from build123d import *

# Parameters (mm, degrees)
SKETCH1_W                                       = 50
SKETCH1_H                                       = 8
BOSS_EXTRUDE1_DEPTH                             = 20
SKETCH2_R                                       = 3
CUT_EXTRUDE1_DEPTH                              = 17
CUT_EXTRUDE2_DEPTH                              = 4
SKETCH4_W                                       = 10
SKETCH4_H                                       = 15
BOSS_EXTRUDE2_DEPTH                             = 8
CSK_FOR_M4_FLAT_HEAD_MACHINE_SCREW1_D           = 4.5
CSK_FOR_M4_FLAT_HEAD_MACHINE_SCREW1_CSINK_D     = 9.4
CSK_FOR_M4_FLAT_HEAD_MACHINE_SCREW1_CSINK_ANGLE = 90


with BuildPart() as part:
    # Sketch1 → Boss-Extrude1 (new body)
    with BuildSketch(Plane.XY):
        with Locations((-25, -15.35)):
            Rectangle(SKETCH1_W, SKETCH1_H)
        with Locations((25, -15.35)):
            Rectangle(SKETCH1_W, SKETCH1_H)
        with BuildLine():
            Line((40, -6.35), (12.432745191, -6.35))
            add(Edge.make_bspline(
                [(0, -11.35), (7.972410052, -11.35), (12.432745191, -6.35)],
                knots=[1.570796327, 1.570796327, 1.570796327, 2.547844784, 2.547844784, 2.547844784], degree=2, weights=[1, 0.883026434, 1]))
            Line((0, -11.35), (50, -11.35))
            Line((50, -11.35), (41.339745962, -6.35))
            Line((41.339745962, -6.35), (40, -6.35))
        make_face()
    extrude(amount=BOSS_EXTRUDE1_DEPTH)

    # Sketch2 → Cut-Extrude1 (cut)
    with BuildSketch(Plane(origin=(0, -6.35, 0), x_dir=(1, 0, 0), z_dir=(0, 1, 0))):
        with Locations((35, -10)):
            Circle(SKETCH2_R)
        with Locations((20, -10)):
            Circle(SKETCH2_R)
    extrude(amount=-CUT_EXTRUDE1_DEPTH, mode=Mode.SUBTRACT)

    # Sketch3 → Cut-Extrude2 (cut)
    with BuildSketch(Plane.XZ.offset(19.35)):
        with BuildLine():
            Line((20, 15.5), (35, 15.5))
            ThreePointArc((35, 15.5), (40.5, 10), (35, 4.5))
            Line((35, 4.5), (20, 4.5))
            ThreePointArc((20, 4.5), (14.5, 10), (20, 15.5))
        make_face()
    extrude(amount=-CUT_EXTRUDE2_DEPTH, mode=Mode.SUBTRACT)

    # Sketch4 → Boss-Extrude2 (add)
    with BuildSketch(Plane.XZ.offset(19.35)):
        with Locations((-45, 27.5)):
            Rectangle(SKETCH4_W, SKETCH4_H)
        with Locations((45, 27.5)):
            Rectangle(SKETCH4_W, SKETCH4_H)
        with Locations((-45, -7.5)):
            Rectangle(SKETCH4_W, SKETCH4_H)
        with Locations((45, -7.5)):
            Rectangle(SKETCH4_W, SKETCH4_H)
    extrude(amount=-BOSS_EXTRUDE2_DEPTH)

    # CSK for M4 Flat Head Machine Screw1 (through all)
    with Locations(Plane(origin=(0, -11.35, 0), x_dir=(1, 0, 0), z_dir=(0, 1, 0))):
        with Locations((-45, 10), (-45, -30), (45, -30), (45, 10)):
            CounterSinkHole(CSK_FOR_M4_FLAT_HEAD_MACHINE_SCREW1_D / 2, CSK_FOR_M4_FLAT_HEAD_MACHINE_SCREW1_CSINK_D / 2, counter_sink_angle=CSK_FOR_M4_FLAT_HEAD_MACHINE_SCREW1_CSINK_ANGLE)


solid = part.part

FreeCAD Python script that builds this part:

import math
import FreeCAD as App
import Part
import Sketcher
from FreeCAD import Vector
Q = App.Units.Quantity

doc = App.newDocument("Part")
body = doc.addObject("PartDesign::Body", "Body")

sketch1 = body.newObject("Sketcher::SketchObject", "Sketch")
sketch1.AttachmentSupport = (doc.getObject("XY_Plane"), [""])
sketch1.MapMode = "FlatFace"
sketch1.addGeometry([
    Part.LineSegment(Vector(-50, -11.35, 0), Vector(-50, -19.35, 0)),
    Part.LineSegment(Vector(-50, -19.35, 0), Vector(50, -19.35, 0)),
    Part.LineSegment(Vector(50, -19.35, 0), Vector(50, -11.35, 0)),
    Part.LineSegment(Vector(50, -11.35, 0), Vector(41.339746, -6.35, 0)),
    Part.LineSegment(Vector(41.339746, -6.35, 0), Vector(12.432745, -6.35, 0)),
    Part.BSplineCurve([Vector(0, -11.35, 0), Vector(7.97241, -11.35, 0), Vector(12.432745, -6.35, 0)], [3, 3], [1.570796327, 2.547844784], False, 2, [1, 0.883026434, 1], False),
    Part.LineSegment(Vector(0, -11.35, 0), Vector(-50, -11.35, 0)),
], False)
sketch1.addConstraint([
    Sketcher.Constraint("Block", 5),
    Sketcher.Constraint("Coincident", 0, 2, 1, 1),
    Sketcher.Constraint("Coincident", 1, 2, 2, 1),
    Sketcher.Constraint("Coincident", 2, 2, 3, 1),
    Sketcher.Constraint("Coincident", 3, 2, 4, 1),
    Sketcher.Constraint("Coincident", 4, 2, 5, 2),
    Sketcher.Constraint("Coincident", 5, 1, 6, 1),
    Sketcher.Constraint("Coincident", 6, 2, 0, 1),
    Sketcher.Constraint("Vertical", 0),
    Sketcher.Constraint("Horizontal", 1),
    Sketcher.Constraint("Vertical", 2),
    Sketcher.Constraint("Horizontal", 4),
    Sketcher.Constraint("Horizontal", 6),
    Sketcher.Constraint("Symmetric", 2, 2, 6, 2, -2),
    Sketcher.Constraint("DistanceX", 1, 1, 1, 2, Q("100 mm")),
    Sketcher.Constraint("DistanceY", 0, 2, 0, 1, Q("8 mm")),
    Sketcher.Constraint("Angle", 3, Q("150 deg")),
])
pad1 = body.newObject("PartDesign::Pad", "Pad")
pad1.Profile = sketch1
pad1.Length = 20

sketch2 = body.newObject("Sketcher::SketchObject", "Sketch001")
sketch2.AttachmentSupport = (doc.getObject("XZ_Plane"), [""])
sketch2.MapMode = "FlatFace"
sketch2.AttachmentOffset = App.Placement(Vector(0, 0, 6.35), App.Rotation())
sketch2.addGeometry([
    Part.Circle(Vector(35, 10, 0), Vector(0, 0, 1), 3),
    Part.Circle(Vector(20, 10, 0), Vector(0, 0, 1), 3),
], False)
sketch2.addConstraint([
    Sketcher.Constraint("Equal", 0, 1),
    Sketcher.Constraint("Horizontal", 0, 3, 1, 3),
    Sketcher.Constraint("Diameter", 0, Q("6 mm")),
    Sketcher.Constraint("DistanceX", -1, 1, 0, 3, Q("35 mm")),
    Sketcher.Constraint("DistanceY", -1, 1, 0, 3, Q("10 mm")),
    Sketcher.Constraint("DistanceX", -1, 1, 1, 3, Q("20 mm")),
])
pocket1 = body.newObject("PartDesign::Pocket", "Pocket")
pocket1.Profile = sketch2
pocket1.Length = 17
pocket1.Reversed = True

sketch3 = body.newObject("Sketcher::SketchObject", "Sketch002")
sketch3.AttachmentSupport = (doc.getObject("XZ_Plane"), [""])
sketch3.MapMode = "FlatFace"
sketch3.AttachmentOffset = App.Placement(Vector(0, 0, 19.35), App.Rotation())
sketch3.addGeometry([
    Part.LineSegment(Vector(35, 16, 0), Vector(20, 16, 0)),
    Part.ArcOfCircle(Part.Circle(Vector(20, 10, 0), Vector(0, 0, 1), 6), math.radians(90), math.radians(270)),
    Part.LineSegment(Vector(20, 4, 0), Vector(35, 4, 0)),
    Part.ArcOfCircle(Part.Circle(Vector(35, 10, 0), Vector(0, 0, 1), 6), math.radians(-90), math.radians(90)),
], False)
sketch3.addConstraint([
    Sketcher.Constraint("Tangent", 0, 2, 1, 1),
    Sketcher.Constraint("Tangent", 1, 2, 2, 1),
    Sketcher.Constraint("Tangent", 2, 2, 3, 1),
    Sketcher.Constraint("Tangent", 3, 2, 0, 1),
    Sketcher.Constraint("Horizontal", 0),
    Sketcher.Constraint("Horizontal", 2),
    Sketcher.Constraint("Radius", 1, Q("5.5 mm")),
    Sketcher.Constraint("DistanceX", 0, 2, 0, 1, Q("15 mm")),
    Sketcher.Constraint("DistanceX", -1, 1, 1, 3, Q("20 mm")),
    Sketcher.Constraint("DistanceY", -1, 1, 1, 3, Q("10 mm")),
])
pocket2 = body.newObject("PartDesign::Pocket", "Pocket001")
pocket2.Profile = sketch3
pocket2.Length = 4

sketch4 = body.newObject("Sketcher::SketchObject", "Sketch003")
sketch4.AttachmentSupport = (doc.getObject("XZ_Plane"), [""])
sketch4.MapMode = "FlatFace"
sketch4.AttachmentOffset = App.Placement(Vector(0, 0, 19.35), App.Rotation())
sketch4.addGeometry([
    Part.LineSegment(Vector(-50, 35, 0), Vector(-50, 20, 0)),
    Part.LineSegment(Vector(-50, 20, 0), Vector(-40, 20, 0)),
    Part.LineSegment(Vector(-40, 20, 0), Vector(-40, 35, 0)),
    Part.LineSegment(Vector(-40, 35, 0), Vector(-50, 35, 0)),
    Part.LineSegment(Vector(40, 35, 0), Vector(40, 20, 0)),
    Part.LineSegment(Vector(40, 20, 0), Vector(50, 20, 0)),
    Part.LineSegment(Vector(50, 20, 0), Vector(50, 35, 0)),
    Part.LineSegment(Vector(50, 35, 0), Vector(40, 35, 0)),
    Part.LineSegment(Vector(-50, 0, 0), Vector(-50, -15, 0)),
    Part.LineSegment(Vector(-50, -15, 0), Vector(-40, -15, 0)),
    Part.LineSegment(Vector(-40, -15, 0), Vector(-40, 0, 0)),
    Part.LineSegment(Vector(-40, 0, 0), Vector(-50, 0, 0)),
    Part.LineSegment(Vector(40, 0, 0), Vector(40, -15, 0)),
    Part.LineSegment(Vector(40, -15, 0), Vector(50, -15, 0)),
    Part.LineSegment(Vector(50, -15, 0), Vector(50, 0, 0)),
    Part.LineSegment(Vector(50, 0, 0), Vector(40, 0, 0)),
], False)
sketch4.addConstraint([
    Sketcher.Constraint("Coincident", 0, 2, 1, 1),
    Sketcher.Constraint("Coincident", 1, 2, 2, 1),
    Sketcher.Constraint("Coincident", 2, 2, 3, 1),
    Sketcher.Constraint("Coincident", 3, 2, 0, 1),
    Sketcher.Constraint("Coincident", 4, 2, 5, 1),
    Sketcher.Constraint("Coincident", 5, 2, 6, 1),
    Sketcher.Constraint("Coincident", 6, 2, 7, 1),
    Sketcher.Constraint("Coincident", 7, 2, 4, 1),
    Sketcher.Constraint("Coincident", 8, 2, 9, 1),
    Sketcher.Constraint("Coincident", 9, 2, 10, 1),
    Sketcher.Constraint("Coincident", 10, 2, 11, 1),
    Sketcher.Constraint("Coincident", 11, 2, 8, 1),
    Sketcher.Constraint("Coincident", 12, 2, 13, 1),
    Sketcher.Constraint("Coincident", 13, 2, 14, 1),
    Sketcher.Constraint("Coincident", 14, 2, 15, 1),
    Sketcher.Constraint("Coincident", 15, 2, 12, 1),
    Sketcher.Constraint("Vertical", 0),
    Sketcher.Constraint("Horizontal", 1),
    Sketcher.Constraint("Vertical", 2),
    Sketcher.Constraint("Horizontal", 3),
    Sketcher.Constraint("Vertical", 4),
    Sketcher.Constraint("Horizontal", 5),
    Sketcher.Constraint("Vertical", 6),
    Sketcher.Constraint("Horizontal", 7),
    Sketcher.Constraint("Vertical", 8),
    Sketcher.Constraint("Horizontal", 9),
    Sketcher.Constraint("Vertical", 10),
    Sketcher.Constraint("Horizontal", 11),
    Sketcher.Constraint("Vertical", 12),
    Sketcher.Constraint("Horizontal", 13),
    Sketcher.Constraint("Vertical", 14),
    Sketcher.Constraint("Horizontal", 15),
    Sketcher.Constraint("Symmetric", 11, 2, 14, 2, -1, 1),
    Sketcher.Constraint("Symmetric", 1, 2, 4, 2, -2),
    Sketcher.Constraint("Symmetric", 3, 2, 6, 2, -2),
    Sketcher.Constraint("Symmetric", 9, 2, 12, 2, -2),
    Sketcher.Constraint("PointOnObject", 10, 2, -1),
    Sketcher.Constraint("Vertical", 3, 2, 8, 2),
    Sketcher.Constraint("Vertical", 2, 2, 9, 2),
    Sketcher.Constraint("Equal", 6, 8),
    Sketcher.Constraint("DistanceX", 1, 1, 1, 2, Q("10 mm")),
    Sketcher.Constraint("DistanceY", 0, 2, 0, 1, Q("15 mm")),
    Sketcher.Constraint("DistanceX", 0, 2, -1, 1, Q("50 mm")),
    Sketcher.Constraint("DistanceY", -1, 1, 0, 2, Q("20 mm")),
])
pad2 = body.newObject("PartDesign::Pad", "Pad001")
pad2.Profile = sketch4
pad2.Length = 8
pad2.Reversed = True

sketch5 = body.newObject("Sketcher::SketchObject", "Sketch004")
sketch5.AttachmentSupport = (doc.getObject("XZ_Plane"), [""])
sketch5.MapMode = "FlatFace"
sketch5.AttachmentOffset = App.Placement(Vector(0, 0, 11.35), App.Rotation())
sketch5.addGeometry([
    Part.Circle(Vector(-45, -10, 0), Vector(0, 0, 1), 2.2),
    Part.Circle(Vector(-45, 30, 0), Vector(0, 0, 1), 2.2),
    Part.Circle(Vector(45, 30, 0), Vector(0, 0, 1), 2.2),
    Part.Circle(Vector(45, -10, 0), Vector(0, 0, 1), 2.2),
], False)
sketch5.addConstraint([
    Sketcher.Constraint("Equal", 0, 1),
    Sketcher.Constraint("Equal", 1, 2),
    Sketcher.Constraint("Equal", 2, 3),
    Sketcher.Constraint("Symmetric", 1, 3, 2, 3, -2),
    Sketcher.Constraint("Symmetric", 0, 3, 3, 3, -2),
    Sketcher.Constraint("Vertical", 0, 3, 1, 3),
    Sketcher.Constraint("Diameter", 0, Q("4.5 mm")),
    Sketcher.Constraint("DistanceX", 0, 3, -1, 1, Q("45 mm")),
    Sketcher.Constraint("DistanceY", 0, 3, -1, 1, Q("10 mm")),
    Sketcher.Constraint("DistanceY", -1, 1, 1, 3, Q("30 mm")),
])
doc.recompute()
hole = body.newObject("PartDesign::Hole", "Hole")
hole.Profile = sketch5
hole.ThreadType = "None"
hole.Diameter = 4.5
hole.DepthType = "ThroughAll"
hole.HoleCutType = "Countersink"
hole.HoleCutDiameter = 9.4
hole.HoleCutCountersinkAngle = 90
hole.Reversed = True

doc.recompute()
